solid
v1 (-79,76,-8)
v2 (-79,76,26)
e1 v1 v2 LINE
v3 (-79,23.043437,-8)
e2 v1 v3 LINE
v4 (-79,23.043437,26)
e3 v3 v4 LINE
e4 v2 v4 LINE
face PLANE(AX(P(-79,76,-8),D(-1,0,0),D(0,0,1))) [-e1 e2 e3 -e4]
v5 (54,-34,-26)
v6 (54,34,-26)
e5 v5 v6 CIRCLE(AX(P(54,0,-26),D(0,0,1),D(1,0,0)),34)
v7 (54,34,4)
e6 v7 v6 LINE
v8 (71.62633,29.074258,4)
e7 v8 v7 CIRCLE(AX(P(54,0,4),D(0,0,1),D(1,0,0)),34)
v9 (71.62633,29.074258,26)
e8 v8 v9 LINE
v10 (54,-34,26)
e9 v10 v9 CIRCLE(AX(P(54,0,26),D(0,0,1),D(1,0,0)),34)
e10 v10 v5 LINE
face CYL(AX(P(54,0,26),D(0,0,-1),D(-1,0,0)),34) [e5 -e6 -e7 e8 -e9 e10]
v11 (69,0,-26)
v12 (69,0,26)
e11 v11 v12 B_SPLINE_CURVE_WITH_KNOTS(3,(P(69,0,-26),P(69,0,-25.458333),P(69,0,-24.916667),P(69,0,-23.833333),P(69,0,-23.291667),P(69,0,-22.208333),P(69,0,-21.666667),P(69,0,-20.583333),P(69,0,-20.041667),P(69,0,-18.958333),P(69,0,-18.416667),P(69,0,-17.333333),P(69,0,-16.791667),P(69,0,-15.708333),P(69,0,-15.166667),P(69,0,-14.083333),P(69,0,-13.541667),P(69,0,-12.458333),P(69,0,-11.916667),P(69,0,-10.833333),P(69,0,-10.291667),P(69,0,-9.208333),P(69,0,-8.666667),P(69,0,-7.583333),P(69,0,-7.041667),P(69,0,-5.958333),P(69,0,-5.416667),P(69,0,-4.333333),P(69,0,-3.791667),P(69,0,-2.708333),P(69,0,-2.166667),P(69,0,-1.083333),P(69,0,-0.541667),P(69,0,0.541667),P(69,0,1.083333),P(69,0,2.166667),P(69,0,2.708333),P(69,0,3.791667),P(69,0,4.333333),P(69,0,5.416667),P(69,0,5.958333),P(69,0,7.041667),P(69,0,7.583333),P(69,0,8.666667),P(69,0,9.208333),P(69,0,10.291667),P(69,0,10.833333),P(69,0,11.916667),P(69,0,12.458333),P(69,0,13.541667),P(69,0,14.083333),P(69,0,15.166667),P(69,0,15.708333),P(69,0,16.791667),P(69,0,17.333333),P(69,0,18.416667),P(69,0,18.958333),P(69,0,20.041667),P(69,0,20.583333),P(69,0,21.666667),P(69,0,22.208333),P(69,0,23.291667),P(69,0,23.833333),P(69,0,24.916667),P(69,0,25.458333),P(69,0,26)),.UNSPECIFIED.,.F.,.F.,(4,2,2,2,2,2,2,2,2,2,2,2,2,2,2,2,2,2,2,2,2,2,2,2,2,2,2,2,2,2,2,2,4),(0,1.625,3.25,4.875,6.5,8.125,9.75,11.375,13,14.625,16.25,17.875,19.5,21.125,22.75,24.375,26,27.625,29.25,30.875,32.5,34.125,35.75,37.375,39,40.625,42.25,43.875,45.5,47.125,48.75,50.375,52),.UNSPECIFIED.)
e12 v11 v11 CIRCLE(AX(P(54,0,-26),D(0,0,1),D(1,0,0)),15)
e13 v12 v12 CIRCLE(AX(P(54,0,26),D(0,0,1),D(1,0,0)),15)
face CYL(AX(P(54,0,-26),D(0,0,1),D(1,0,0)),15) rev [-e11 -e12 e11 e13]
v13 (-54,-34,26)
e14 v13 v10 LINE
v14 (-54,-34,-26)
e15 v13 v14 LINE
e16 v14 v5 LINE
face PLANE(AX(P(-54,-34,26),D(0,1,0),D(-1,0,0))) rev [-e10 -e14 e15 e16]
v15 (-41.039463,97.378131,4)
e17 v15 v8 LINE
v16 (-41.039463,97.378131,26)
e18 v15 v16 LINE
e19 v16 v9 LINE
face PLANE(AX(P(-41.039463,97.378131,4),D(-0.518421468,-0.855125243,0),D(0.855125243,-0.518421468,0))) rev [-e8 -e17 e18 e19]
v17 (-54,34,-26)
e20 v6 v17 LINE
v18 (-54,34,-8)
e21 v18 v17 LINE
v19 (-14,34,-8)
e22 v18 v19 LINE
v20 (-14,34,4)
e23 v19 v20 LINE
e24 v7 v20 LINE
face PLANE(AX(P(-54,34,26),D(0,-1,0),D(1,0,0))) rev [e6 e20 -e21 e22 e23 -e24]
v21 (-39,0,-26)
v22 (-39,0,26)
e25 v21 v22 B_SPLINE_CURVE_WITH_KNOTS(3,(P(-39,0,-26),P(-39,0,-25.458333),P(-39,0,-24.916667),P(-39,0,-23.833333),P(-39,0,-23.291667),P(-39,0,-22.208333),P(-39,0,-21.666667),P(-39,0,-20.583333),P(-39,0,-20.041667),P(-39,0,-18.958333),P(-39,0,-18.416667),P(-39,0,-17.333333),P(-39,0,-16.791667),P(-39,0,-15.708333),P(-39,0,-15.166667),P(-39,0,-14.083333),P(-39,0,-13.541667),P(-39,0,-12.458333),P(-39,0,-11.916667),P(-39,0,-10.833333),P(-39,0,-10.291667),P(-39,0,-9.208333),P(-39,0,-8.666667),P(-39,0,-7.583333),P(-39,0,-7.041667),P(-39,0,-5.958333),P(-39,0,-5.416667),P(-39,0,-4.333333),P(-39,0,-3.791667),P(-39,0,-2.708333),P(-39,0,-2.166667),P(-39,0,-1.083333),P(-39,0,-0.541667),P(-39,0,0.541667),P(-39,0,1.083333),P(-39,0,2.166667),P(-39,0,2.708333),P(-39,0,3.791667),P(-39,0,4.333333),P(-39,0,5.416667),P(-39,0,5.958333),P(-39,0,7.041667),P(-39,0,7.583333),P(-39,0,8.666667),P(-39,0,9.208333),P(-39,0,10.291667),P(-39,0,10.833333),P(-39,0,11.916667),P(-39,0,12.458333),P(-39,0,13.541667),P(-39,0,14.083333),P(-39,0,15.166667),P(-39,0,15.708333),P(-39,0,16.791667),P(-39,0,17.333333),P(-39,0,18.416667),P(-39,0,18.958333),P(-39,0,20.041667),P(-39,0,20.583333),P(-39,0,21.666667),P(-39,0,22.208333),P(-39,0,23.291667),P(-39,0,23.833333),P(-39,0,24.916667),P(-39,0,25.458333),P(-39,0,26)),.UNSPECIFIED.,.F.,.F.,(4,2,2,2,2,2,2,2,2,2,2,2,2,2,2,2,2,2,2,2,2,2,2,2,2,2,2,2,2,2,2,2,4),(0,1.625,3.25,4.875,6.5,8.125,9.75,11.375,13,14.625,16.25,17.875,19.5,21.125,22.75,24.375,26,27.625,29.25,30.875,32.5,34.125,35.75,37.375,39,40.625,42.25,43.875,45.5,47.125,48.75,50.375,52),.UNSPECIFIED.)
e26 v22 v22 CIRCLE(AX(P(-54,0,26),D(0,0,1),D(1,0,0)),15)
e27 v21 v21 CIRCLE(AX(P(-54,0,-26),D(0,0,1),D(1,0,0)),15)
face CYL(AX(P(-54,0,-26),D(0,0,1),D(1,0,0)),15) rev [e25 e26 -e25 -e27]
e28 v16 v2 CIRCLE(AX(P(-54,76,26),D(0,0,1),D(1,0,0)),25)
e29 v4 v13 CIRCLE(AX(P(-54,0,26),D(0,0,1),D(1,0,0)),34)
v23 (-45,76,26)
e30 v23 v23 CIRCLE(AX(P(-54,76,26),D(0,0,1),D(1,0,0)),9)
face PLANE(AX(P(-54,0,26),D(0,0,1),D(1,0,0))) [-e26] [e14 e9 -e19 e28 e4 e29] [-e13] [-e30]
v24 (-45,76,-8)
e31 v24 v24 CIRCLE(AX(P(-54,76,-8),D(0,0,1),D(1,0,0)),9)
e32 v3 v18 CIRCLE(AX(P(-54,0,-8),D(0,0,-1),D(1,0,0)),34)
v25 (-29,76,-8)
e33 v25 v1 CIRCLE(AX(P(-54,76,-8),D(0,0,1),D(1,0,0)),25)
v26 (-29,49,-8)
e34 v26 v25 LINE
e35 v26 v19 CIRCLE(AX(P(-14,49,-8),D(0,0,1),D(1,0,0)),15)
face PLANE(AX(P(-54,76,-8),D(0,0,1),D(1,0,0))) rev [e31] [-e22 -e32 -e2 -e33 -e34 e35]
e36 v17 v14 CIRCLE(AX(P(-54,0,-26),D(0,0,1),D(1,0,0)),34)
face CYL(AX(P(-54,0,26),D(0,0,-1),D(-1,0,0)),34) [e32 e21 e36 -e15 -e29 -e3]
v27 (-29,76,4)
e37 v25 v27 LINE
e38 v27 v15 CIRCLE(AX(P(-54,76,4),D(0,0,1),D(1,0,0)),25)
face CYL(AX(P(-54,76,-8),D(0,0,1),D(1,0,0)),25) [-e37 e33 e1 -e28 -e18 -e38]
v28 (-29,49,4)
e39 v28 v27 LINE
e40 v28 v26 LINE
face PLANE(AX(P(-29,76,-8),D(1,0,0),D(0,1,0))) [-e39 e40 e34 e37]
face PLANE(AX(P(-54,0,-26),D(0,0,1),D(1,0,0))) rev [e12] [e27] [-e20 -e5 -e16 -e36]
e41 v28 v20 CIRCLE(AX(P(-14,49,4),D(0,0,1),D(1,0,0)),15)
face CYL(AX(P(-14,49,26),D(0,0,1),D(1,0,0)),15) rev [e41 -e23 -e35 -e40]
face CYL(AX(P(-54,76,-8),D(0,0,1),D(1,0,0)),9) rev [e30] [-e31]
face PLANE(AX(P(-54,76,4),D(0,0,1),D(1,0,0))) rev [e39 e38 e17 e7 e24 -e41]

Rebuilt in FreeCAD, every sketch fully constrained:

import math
import FreeCAD as App
import Part
import Sketcher
from FreeCAD import Vector
Q = App.Units.Quantity


def edges_at(feature, points):
    """Names of the edges that pass closest to the given points."""
    edges = feature.Shape.Edges
    near = lambda p: min(range(len(edges)), key=lambda i: edges[i].distToShape(Part.Vertex(*p))[0])
    return sorted({f"Edge{near(p) + 1}" for p in points})

doc = App.newDocument("Part")
body = doc.addObject("PartDesign::Body", "Body")

sketch1 = body.newObject("Sketcher::SketchObject", "Sketch")
sketch1.AttachmentSupport = (doc.getObject("XY_Plane"), [""])
sketch1.MapMode = "FlatFace"
sketch1.addGeometry([
    Part.LineSegment(Vector(54, 34, 0), Vector(-54, 34, 0)),
    Part.ArcOfCircle(Part.Circle(Vector(-54, 0, 0), Vector(0, 0, 1), 34), math.radians(90), math.radians(270)),
    Part.LineSegment(Vector(-54, -34, 0), Vector(54, -34, 0)),
    Part.ArcOfCircle(Part.Circle(Vector(54, 0, 0), Vector(0, 0, 1), 34), math.radians(-90), math.radians(90)),
], False)
sketch1.addConstraint([
    Sketcher.Constraint("Tangent", 0, 2, 1, 1),
    Sketcher.Constraint("Tangent", 1, 2, 2, 1),
    Sketcher.Constraint("Tangent", 2, 2, 3, 1),
    Sketcher.Constraint("Tangent", 3, 2, 0, 1),
    Sketcher.Constraint("Horizontal", 0),
    Sketcher.Constraint("Horizontal", 2),
    Sketcher.Constraint("Symmetric", 1, 3, 3, 3, -1, 1),
    Sketcher.Constraint("Radius", 1, Q("34 mm")),
    Sketcher.Constraint("DistanceX", 0, 2, 0, 1, Q("108 mm")),
])
pad1 = body.newObject("PartDesign::Pad", "Pad")
pad1.Profile = sketch1
pad1.Length = 52
pad1.Midplane = True

sketch2 = body.newObject("Sketcher::SketchObject", "Sketch001")
sketch2.AttachmentSupport = (doc.getObject("XY_Plane"), [""])
sketch2.MapMode = "FlatFace"
sketch2.AttachmentOffset = App.Placement(Vector(0, 0, 26), App.Rotation())
sketch2.addGeometry([
    Part.Circle(Vector(54, 0, 0), Vector(0, 0, 1), 15),
    Part.Circle(Vector(-54, 0, 0), Vector(0, 0, 1), 15),
], False)
sketch2.addConstraint([
    Sketcher.Constraint("Equal", 0, 1),
    Sketcher.Constraint("Symmetric", 0, 3, 1, 3, -1, 1),
    Sketcher.Constraint("PointOnObject", 0, 3, -1),
    Sketcher.Constraint("Diameter", 0, Q("30 mm")),
    Sketcher.Constraint("DistanceX", -1, 1, 0, 3, Q("54 mm")),
])
pocket1 = body.newObject("PartDesign::Pocket", "Pocket")
pocket1.Profile = sketch2
pocket1.Type = "ThroughAll"
body2 = doc.addObject("PartDesign::Body", "Body001")

sketch3 = body2.newObject("Sketcher::SketchObject", "Sketch002")
sketch3.AttachmentSupport = (doc.getObject("XY_Plane001"), [""])
sketch3.MapMode = "FlatFace"
sketch3.AttachmentOffset = App.Placement(Vector(0, 0, 26), App.Rotation())
sketch3.addGeometry([
    Part.Circle(Vector(-54, 76, 0), Vector(0, 0, 1), 25),
    Part.Circle(Vector(-54, 76, 0), Vector(0, 0, 1), 9),
], False)
sketch3.addConstraint([
    Sketcher.Constraint("Coincident", 1, 3, 0, 3),
    Sketcher.Constraint("Diameter", 0, Q("50 mm")),
    Sketcher.Constraint("Diameter", 1, Q("18 mm")),
    Sketcher.Constraint("DistanceX", 0, 3, -1, 1, Q("54 mm")),
    Sketcher.Constraint("DistanceY", -1, 1, 0, 3, Q("76 mm")),
])
pad2 = body2.newObject("PartDesign::Pad", "Pad001")
pad2.Profile = sketch3
pad2.Length = 34
pad2.Reversed = True
body.AllowCompound = True
doc.recompute()

boolean = body.newObject("PartDesign::Boolean", "Boolean")
boolean.Type = "Fuse"
boolean.addObjects([body2])

sketch4 = body.newObject("Sketcher::SketchObject", "Sketch003")
sketch4.AttachmentSupport = (doc.getObject("XY_Plane"), [""])
sketch4.MapMode = "FlatFace"
sketch4.AttachmentOffset = App.Placement(Vector(0, 0, 26), App.Rotation())
sketch4.addGeometry([
    Part.LineSegment(Vector(-79, 76, 0), Vector(-79, 23.043437, 0)),
    Part.ArcOfCircle(Part.Circle(Vector(-54, 0, 0), Vector(0, 0, 1), 34), math.radians(90), math.radians(137.332075)),
    Part.LineSegment(Vector(-54, 34, 0), Vector(-29, 34, 0)),
    Part.LineSegment(Vector(-29, 34, 0), Vector(-29, 76, 0)),
    Part.ArcOfCircle(Part.Circle(Vector(-54, 76, 0), Vector(0, 0, 1), 25), math.radians(180), math.radians(360)),
], False)
sketch4.addConstraint([
    Sketcher.Constraint("Coincident", 0, 2, 1, 2),
    Sketcher.Constraint("Tangent", 1, 1, 2, 1),
    Sketcher.Constraint("Coincident", 2, 2, 3, 1),
    Sketcher.Constraint("Tangent", 3, 2, 4, 2),
    Sketcher.Constraint("Tangent", 4, 1, 0, 1),
    Sketcher.Constraint("Vertical", 0),
    Sketcher.Constraint("Horizontal", 2),
    Sketcher.Constraint("Vertical", 3),
    Sketcher.Constraint("PointOnObject", 1, 3, -1),
    Sketcher.Constraint("Vertical", 1, 3, 4, 3),
    Sketcher.Constraint("Radius", 1, Q("34 mm")),
    Sketcher.Constraint("Radius", 4, Q("25 mm")),
    Sketcher.Constraint("DistanceY", 3, 1, 3, 2, Q("42 mm")),
    Sketcher.Constraint("DistanceX", 1, 3, -1, 1, Q("54 mm")),
])
pad3 = body.newObject("PartDesign::Pad", "Pad002")
pad3.Profile = sketch4
pad3.Length = 34
pad3.Reversed = True
doc.recompute()

fillet = body.newObject("PartDesign::Fillet", "Fillet")
fillet.Base = (pad3, edges_at(pad3, [(-29, 34, 9)]))
fillet.Radius = 15

sketch5 = body.newObject("Sketcher::SketchObject", "Sketch004")
sketch5.AttachmentSupport = (doc.getObject("XY_Plane"), [""])
sketch5.MapMode = "FlatFace"
sketch5.AttachmentOffset = App.Placement(Vector(0, 0, 26), App.Rotation())
sketch5.addGeometry([
    Part.LineSegment(Vector(71.62633, 29.074258, 0), Vector(-41.039463, 97.378131, 0)),
    Part.ArcOfCircle(Part.Circle(Vector(-54, 76, 0), Vector(0, 0, 1), 25), math.radians(0), math.radians(58.773574)),
    Part.LineSegment(Vector(-29, 76, 0), Vector(-29, 49, 0)),
    Part.ArcOfCircle(Part.Circle(Vector(-14, 49, 0), Vector(0, 0, 1), 15), math.radians(180), math.radians(270)),
    Part.LineSegment(Vector(-14, 34, 0), Vector(54, 34, 0)),
    Part.ArcOfCircle(Part.Circle(Vector(54, 0, 0), Vector(0, 0, 1), 34), math.radians(58.773574), math.radians(90)),
], False)
sketch5.addConstraint([
    Sketcher.Constraint("Tangent", 0, 2, 1, 2),
    Sketcher.Constraint("Tangent", 1, 1, 2, 1),
    Sketcher.Constraint("Tangent", 2, 2, 3, 1),
    Sketcher.Constraint("Tangent", 3, 2, 4, 1),
    Sketcher.Constraint("Tangent", 4, 2, 5, 2),
    Sketcher.Constraint("Tangent", 5, 1, 0, 1),
    Sketcher.Constraint("Vertical", 2),
    Sketcher.Constraint("Horizontal", 4),
    Sketcher.Constraint("PointOnObject", 5, 3, -1),
    Sketcher.Constraint("Radius", 1, Q("25 mm")),
    Sketcher.Constraint("Radius", 3, Q("15 mm")),
    Sketcher.Constraint("Radius", 5, Q("34 mm")),
    Sketcher.Constraint("DistanceX", 4, 1, 4, 2, Q("68 mm")),
    Sketcher.Constraint("DistanceY", 2, 2, 2, 1, Q("27 mm")),
    Sketcher.Constraint("DistanceX", 1, 3, -1, 1, Q("54 mm")),
])
pad4 = body.newObject("PartDesign::Pad", "Pad003")
pad4.Profile = sketch5
pad4.Length = 22
pad4.Reversed = True

doc.recompute()
